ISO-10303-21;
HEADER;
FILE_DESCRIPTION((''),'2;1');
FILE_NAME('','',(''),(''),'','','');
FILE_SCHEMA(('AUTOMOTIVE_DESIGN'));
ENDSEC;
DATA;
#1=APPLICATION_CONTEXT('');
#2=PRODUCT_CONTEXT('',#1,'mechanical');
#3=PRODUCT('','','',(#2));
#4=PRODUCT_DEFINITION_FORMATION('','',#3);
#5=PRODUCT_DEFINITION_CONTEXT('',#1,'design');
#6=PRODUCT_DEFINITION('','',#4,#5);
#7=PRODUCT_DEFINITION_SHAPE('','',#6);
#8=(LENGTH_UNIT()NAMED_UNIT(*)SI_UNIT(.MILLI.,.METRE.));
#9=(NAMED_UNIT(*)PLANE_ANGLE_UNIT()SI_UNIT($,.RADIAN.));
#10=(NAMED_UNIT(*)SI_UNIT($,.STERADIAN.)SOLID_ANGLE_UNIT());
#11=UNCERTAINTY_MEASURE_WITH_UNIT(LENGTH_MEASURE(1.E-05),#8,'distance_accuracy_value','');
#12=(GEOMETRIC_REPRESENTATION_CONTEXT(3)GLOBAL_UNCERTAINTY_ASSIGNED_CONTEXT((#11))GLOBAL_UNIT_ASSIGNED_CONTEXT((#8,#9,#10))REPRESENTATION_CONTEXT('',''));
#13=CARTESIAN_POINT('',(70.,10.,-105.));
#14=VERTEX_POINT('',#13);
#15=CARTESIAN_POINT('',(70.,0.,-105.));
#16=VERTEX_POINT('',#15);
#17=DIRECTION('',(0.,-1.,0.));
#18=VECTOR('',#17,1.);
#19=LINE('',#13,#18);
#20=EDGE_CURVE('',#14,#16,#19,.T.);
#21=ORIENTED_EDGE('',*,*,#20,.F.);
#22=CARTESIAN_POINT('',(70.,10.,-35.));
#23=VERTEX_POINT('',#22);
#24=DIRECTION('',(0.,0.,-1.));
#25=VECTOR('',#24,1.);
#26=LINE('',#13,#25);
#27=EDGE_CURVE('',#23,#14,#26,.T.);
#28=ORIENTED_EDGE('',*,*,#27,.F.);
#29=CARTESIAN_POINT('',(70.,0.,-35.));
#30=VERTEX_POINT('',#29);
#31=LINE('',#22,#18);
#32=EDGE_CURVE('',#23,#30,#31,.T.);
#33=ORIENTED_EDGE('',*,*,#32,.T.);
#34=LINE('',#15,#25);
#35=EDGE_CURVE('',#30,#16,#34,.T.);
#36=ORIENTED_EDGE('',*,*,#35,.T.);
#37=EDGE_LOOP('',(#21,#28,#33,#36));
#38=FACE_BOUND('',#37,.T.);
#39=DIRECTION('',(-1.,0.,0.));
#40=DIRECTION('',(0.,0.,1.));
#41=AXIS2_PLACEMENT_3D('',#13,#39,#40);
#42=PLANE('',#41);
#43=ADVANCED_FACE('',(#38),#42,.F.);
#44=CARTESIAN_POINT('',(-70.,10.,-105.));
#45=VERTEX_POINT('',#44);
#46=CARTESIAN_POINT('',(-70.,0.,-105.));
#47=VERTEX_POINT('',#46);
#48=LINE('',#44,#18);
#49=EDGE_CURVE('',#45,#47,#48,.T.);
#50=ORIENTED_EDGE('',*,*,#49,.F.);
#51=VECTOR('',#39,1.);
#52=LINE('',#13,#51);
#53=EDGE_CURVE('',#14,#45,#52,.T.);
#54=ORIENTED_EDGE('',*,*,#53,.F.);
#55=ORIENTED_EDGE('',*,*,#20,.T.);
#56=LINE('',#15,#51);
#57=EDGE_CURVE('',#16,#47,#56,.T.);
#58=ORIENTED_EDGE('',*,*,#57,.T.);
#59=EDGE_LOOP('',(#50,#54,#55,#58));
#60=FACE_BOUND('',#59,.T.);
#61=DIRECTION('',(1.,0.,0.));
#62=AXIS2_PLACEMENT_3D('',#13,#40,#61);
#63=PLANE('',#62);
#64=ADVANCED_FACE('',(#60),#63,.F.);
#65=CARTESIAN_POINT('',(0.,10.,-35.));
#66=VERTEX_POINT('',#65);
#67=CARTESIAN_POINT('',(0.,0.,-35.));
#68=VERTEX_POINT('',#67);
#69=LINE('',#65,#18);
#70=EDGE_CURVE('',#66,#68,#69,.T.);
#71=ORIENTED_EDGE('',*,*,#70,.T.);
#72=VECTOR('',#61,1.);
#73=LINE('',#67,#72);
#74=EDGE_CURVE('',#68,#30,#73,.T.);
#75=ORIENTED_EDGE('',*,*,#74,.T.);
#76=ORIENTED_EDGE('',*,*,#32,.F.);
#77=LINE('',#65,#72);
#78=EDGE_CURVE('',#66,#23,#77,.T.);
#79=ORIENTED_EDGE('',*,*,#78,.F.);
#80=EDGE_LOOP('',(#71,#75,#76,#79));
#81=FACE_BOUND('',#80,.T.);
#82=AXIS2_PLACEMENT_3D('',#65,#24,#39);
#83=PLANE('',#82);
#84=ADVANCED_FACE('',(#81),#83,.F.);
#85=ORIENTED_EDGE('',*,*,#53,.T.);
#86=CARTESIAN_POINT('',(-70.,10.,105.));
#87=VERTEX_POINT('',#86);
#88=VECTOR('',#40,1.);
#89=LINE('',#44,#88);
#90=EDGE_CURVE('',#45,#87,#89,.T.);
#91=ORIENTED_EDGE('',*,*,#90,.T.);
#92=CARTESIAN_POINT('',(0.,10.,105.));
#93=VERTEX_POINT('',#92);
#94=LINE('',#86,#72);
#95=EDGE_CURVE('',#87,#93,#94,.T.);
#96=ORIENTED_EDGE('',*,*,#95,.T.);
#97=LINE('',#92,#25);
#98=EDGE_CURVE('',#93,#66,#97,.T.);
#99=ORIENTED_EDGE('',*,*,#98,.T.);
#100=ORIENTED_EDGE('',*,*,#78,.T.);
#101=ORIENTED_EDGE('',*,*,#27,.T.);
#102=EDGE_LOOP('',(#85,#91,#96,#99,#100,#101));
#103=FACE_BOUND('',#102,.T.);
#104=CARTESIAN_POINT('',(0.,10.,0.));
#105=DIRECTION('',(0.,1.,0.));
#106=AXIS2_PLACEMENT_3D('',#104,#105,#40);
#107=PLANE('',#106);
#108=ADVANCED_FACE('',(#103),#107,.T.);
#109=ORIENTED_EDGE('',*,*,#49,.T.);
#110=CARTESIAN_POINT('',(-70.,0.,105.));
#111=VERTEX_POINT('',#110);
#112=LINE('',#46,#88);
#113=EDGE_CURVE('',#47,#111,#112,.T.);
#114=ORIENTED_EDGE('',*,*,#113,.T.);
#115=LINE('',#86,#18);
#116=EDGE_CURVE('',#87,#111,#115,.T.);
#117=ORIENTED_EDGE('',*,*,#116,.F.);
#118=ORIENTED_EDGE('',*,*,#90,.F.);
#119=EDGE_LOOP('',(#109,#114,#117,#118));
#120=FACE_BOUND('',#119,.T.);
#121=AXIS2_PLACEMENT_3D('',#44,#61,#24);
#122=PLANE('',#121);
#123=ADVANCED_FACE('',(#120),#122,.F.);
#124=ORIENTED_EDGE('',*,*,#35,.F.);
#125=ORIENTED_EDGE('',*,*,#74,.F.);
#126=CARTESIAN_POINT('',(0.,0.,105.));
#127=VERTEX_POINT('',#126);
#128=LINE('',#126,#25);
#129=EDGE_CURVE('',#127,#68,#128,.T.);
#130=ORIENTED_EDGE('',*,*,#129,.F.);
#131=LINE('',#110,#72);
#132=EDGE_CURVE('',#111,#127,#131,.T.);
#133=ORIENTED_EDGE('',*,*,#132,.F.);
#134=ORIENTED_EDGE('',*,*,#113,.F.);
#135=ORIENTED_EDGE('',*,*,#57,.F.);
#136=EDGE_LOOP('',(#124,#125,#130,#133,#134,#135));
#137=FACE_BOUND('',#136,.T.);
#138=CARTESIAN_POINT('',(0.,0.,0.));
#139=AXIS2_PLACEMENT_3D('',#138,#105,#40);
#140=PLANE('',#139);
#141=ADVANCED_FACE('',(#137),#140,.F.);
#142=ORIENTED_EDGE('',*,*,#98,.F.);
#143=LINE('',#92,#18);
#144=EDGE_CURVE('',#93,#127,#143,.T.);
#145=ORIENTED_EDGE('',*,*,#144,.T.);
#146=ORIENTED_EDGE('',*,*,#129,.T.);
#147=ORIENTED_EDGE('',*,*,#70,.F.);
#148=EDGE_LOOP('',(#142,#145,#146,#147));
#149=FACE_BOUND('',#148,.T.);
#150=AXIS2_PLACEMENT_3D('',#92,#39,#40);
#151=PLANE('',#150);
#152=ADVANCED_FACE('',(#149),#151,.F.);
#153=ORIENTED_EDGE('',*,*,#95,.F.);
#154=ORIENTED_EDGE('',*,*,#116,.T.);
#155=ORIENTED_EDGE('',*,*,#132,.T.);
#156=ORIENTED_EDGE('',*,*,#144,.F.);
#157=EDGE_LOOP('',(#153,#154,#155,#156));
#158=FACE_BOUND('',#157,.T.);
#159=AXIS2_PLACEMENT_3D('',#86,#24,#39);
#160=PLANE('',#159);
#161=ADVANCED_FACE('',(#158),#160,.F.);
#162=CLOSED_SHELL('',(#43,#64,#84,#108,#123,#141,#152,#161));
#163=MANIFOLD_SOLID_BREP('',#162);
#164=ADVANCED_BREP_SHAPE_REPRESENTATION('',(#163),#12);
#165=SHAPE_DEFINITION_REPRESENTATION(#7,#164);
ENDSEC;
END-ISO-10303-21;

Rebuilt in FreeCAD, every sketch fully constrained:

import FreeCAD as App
import Part
import Sketcher

V = App.Vector

doc = App.newDocument("Part")
body = doc.addObject("PartDesign::Body", "Body")

# Sketch on XZ plane
sketch1 = doc.addObject("Sketcher::SketchObject", "Sketch")
body.addObject(sketch1)
sketch1.AttachmentSupport = (doc.XZ_Plane, [""])
sketch1.MapMode = "FlatFace"
sketch1.addGeometry([
    Part.LineSegment(V(0, 105, 0), V(0, -35, 0)),  # 0
    Part.LineSegment(V(0, -35, 0), V(70, -35, 0)),  # 1
    Part.LineSegment(V(70, -35, 0), V(70, -105, 0)),  # 2
    Part.LineSegment(V(70, -105, 0), V(-70, -105, 0)),  # 3
    Part.LineSegment(V(-70, -105, 0), V(-70, 105, 0)),  # 4
    Part.LineSegment(V(-70, 105, 0), V(0, 105, 0)),  # 5
], False)
sketch1.addConstraint([
    Sketcher.Constraint("Coincident", 0, 2, 1, 1),
    Sketcher.Constraint("Coincident", 1, 2, 2, 1),
    Sketcher.Constraint("Coincident", 2, 2, 3, 1),
    Sketcher.Constraint("Coincident", 3, 2, 4, 1),
    Sketcher.Constraint("Coincident", 4, 2, 5, 1),
    Sketcher.Constraint("Coincident", 5, 2, 0, 1),
    Sketcher.Constraint("Vertical", 0),
    Sketcher.Constraint("Horizontal", 1),
    Sketcher.Constraint("Vertical", 2),
    Sketcher.Constraint("Horizontal", 3),
    Sketcher.Constraint("Vertical", 4),
    Sketcher.Constraint("Horizontal", 5),
    Sketcher.Constraint("Symmetric", 2, 2, 4, 2, -1, 1),
    Sketcher.Constraint("PointOnObject", 0, 2, -2),
    Sketcher.Constraint("Equal", 3, 0),
    Sketcher.Constraint("Equal", 5, 2),
    Sketcher.Constraint("DistanceX", 1, 1, 1, 2, 70.0),
])
pad1 = doc.addObject("PartDesign::Pad", "Pad")
body.addObject(pad1)
pad1.Profile = sketch1
pad1.Length = 10
pad1.Reversed = True

doc.recompute()
